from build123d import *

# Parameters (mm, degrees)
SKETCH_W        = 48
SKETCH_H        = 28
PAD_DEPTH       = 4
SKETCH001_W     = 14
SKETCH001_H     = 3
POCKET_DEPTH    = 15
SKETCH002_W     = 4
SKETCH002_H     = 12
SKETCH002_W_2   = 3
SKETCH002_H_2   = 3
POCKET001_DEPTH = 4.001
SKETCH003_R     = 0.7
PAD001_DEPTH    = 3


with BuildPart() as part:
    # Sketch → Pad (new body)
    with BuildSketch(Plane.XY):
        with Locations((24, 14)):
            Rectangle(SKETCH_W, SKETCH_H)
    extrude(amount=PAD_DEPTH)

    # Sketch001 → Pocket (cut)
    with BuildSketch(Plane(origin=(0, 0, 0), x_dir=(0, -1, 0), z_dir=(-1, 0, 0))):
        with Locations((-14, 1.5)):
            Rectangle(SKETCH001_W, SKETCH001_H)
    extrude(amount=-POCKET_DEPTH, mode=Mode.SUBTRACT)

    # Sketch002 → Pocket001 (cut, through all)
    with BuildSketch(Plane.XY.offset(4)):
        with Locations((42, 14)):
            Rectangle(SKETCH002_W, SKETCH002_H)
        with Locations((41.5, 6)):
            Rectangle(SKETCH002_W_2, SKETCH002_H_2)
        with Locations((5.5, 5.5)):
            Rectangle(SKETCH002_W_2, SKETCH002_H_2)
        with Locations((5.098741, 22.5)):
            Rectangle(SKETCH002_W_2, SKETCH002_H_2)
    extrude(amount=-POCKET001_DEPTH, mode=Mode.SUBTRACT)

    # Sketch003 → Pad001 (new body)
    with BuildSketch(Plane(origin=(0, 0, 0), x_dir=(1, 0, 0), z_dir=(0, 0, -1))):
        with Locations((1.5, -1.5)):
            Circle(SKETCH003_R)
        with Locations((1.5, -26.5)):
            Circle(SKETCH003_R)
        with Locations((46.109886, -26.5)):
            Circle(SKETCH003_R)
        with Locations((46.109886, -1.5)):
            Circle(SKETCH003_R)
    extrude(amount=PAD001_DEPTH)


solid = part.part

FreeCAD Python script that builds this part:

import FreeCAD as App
import Part
import Sketcher


def add_polygon(sketch, points):
    """Adds a closed chain of lines whose ends are joined by coincident constraints."""
    first, n = sketch.GeometryCount, len(points)
    for a, b in zip(points, points[1:] + points[:1]):
        sketch.addGeometry(Part.LineSegment(App.Vector(*a, 0), App.Vector(*b, 0)), False)
    for i in range(n):
        sketch.addConstraint(Sketcher.Constraint("Coincident", first + i, 2, first + (i + 1) % n, 1))

doc = App.newDocument("Part")
params = doc.addObject("Spreadsheet::Sheet", "Params")
for row, (alias, value) in enumerate([
    ("sketch1_width", "48 mm"),
    ("sketch1_height", "28 mm"),
    ("pad1_length", "4 mm"),
    ("sketch2_width", "14 mm"),
    ("sketch2_height", "3 mm"),
    ("pocket1_length", "15 mm"),
    ("sketch3_width", "4 mm"),
    ("sketch3_width2", "3 mm"),
    ("sketch3_height", "12 mm"),
    ("sketch4_diameter", "1.4 mm"),
    ("pad2_length", "3 mm"),
], start=1):
    params.set(f"A{row}", alias)
    params.set(f"B{row}", "=" + value)
    params.setAlias(f"B{row}", alias)

body = doc.addObject("PartDesign::Body", "Body")

sketch1 = body.newObject("Sketcher::SketchObject", "Sketch")
sketch1.AttachmentSupport = (doc.getObject("XY_Plane"), [""])
sketch1.MapMode = "FlatFace"
add_polygon(sketch1, [(0, 28), (0, 0), (48, 0), (48, 28)])
sketch1.addConstraint([
    Sketcher.Constraint("Vertical", 0),
    Sketcher.Constraint("Horizontal", 1),
    Sketcher.Constraint("Vertical", 2),
    Sketcher.Constraint("Horizontal", 3),
    Sketcher.Constraint("Coincident", 0, 2, -1, 1),
    Sketcher.Constraint("DistanceX", 1, 1, 1, 2, 48.0),
    Sketcher.Constraint("DistanceY", 0, 2, 0, 1, 28.0),
])
sketch1.setExpression("Constraints[9]", "Params.sketch1_width")
sketch1.setExpression("Constraints[10]", "Params.sketch1_height")
pad1 = body.newObject("PartDesign::Pad", "Pad")
pad1.Profile = sketch1
pad1.setExpression("Length", "Params.pad1_length")

sketch2 = body.newObject("Sketcher::SketchObject", "Sketch001")
sketch2.AttachmentSupport = (doc.getObject("YZ_Plane"), [""])
sketch2.MapMode = "FlatFace"
add_polygon(sketch2, [(21, 3), (21, 0), (7, 0), (7, 3)])
sketch2.addConstraint([
    Sketcher.Constraint("Vertical", 0),
    Sketcher.Constraint("Horizontal", 1),
    Sketcher.Constraint("Vertical", 2),
    Sketcher.Constraint("Horizontal", 3),
    Sketcher.Constraint("PointOnObject", 0, 2, -1),
    Sketcher.Constraint("DistanceX", 1, 2, 1, 1, 14.0),
    Sketcher.Constraint("DistanceY", 0, 2, 0, 1, 3.0),
    Sketcher.Constraint("DistanceX", -1, 1, 0, 2, 21.0),
])
sketch2.setExpression("Constraints[9]", "Params.sketch2_width")
sketch2.setExpression("Constraints[10]", "Params.sketch2_height")
pocket1 = body.newObject("PartDesign::Pocket", "Pocket")
pocket1.Profile = sketch2
pocket1.setExpression("Length", "Params.pocket1_length")
pocket1.Reversed = True

sketch3 = body.newObject("Sketcher::SketchObject", "Sketch002")
sketch3.AttachmentSupport = (doc.getObject("XY_Plane"), [""])
sketch3.MapMode = "FlatFace"
sketch3.AttachmentOffset = App.Placement(App.Vector(0, 0, 4), App.Rotation())
add_polygon(sketch3, [(40, 20), (40, 8), (44, 8), (44, 20)])
add_polygon(sketch3, [(40, 7.5), (40, 4.5), (43, 4.5), (43, 7.5)])
add_polygon(sketch3, [(4, 7), (4, 4), (7, 4), (7, 7)])
add_polygon(sketch3, [(3.6, 24), (3.6, 21), (6.6, 21), (6.6, 24)])
sketch3.addConstraint([
    Sketcher.Constraint("Vertical", 0),
    Sketcher.Constraint("Horizontal", 1),
    Sketcher.Constraint("Vertical", 2),
    Sketcher.Constraint("Horizontal", 3),
    Sketcher.Constraint("Vertical", 4),
    Sketcher.Constraint("Horizontal", 5),
    Sketcher.Constraint("Vertical", 6),
    Sketcher.Constraint("Horizontal", 7),
    Sketcher.Constraint("Vertical", 8),
    Sketcher.Constraint("Horizontal", 9),
    Sketcher.Constraint("Vertical", 10),
    Sketcher.Constraint("Horizontal", 11),
    Sketcher.Constraint("Vertical", 12),
    Sketcher.Constraint("Horizontal", 13),
    Sketcher.Constraint("Vertical", 14),
    Sketcher.Constraint("Horizontal", 15),
    Sketcher.Constraint("Vertical", 3, 2, 4, 2),
    Sketcher.Constraint("Equal", 7, 9),
    Sketcher.Constraint("Equal", 11, 13),
    Sketcher.Constraint("Equal", 15, 4),
    Sketcher.Constraint("Equal", 6, 8),
    Sketcher.Constraint("Equal", 10, 12),
    Sketcher.Constraint("DistanceX", 1, 1, 1, 2, 4.0),
    Sketcher.Constraint("DistanceX", 5, 1, 5, 2, 3.0),
    Sketcher.Constraint("DistanceY", 0, 2, 0, 1, 12.0),
    Sketcher.Constraint("DistanceX", -1, 1, 0, 2, 40.0),
    Sketcher.Constraint("DistanceY", -1, 1, 0, 2, 8.0),
    Sketcher.Constraint("DistanceX", -1, 1, 8, 2, 4.0),
    Sketcher.Constraint("DistanceY", -1, 1, 8, 2, 4.0),
    Sketcher.Constraint("DistanceY", -1, 1, 12, 2, 21.0),
    Sketcher.Constraint("DistanceY", -1, 1, 4, 2, 4.5),
    Sketcher.Constraint("DistanceX", -1, 1, 12, 2, 3.598741),
])
sketch3.setExpression("Constraints[38]", "Params.sketch3_width")
sketch3.setExpression("Constraints[39]", "Params.sketch3_width2")
sketch3.setExpression("Constraints[40]", "Params.sketch3_height")
pocket2 = body.newObject("PartDesign::Pocket", "Pocket001")
pocket2.Profile = sketch3
pocket2.Type = "ThroughAll"

sketch4 = body.newObject("Sketcher::SketchObject", "Sketch003")
sketch4.AttachmentSupport = (doc.getObject("XY_Plane"), [""])
sketch4.MapMode = "FlatFace"
sketch4.addGeometry([
    Part.Circle(App.Vector(1.5, 1.5, 0), App.Vector(0, 0, 1), 0.7),
    Part.Circle(App.Vector(1.5, 26.5, 0), App.Vector(0, 0, 1), 0.7),
    Part.Circle(App.Vector(46.1, 26.5, 0), App.Vector(0, 0, 1), 0.7),
    Part.Circle(App.Vector(46.1, 1.5, 0), App.Vector(0, 0, 1), 0.7),
], False)
sketch4.addConstraint([
    Sketcher.Constraint("Equal", 0, 1),
    Sketcher.Constraint("Equal", 1, 2),
    Sketcher.Constraint("Equal", 2, 3),
    Sketcher.Constraint("Horizontal", 1, 3, 2, 3),
    Sketcher.Constraint("Horizontal", 0, 3, 3, 3),
    Sketcher.Constraint("Vertical", 0, 3, 1, 3),
    Sketcher.Constraint("Vertical", 2, 3, 3, 3),
    Sketcher.Constraint("Diameter", 0, 1.4),
    Sketcher.Constraint("DistanceY", 0, 3, 1, 3, 25.0),
    Sketcher.Constraint("DistanceX", -1, 1, 0, 3, 1.5),
    Sketcher.Constraint("DistanceY", -1, 1, 0, 3, 1.5),
    Sketcher.Constraint("DistanceX", -1, 1, 2, 3, 46.109886),
])
sketch4.setExpression("Constraints[7]", "Params.sketch4_diameter")
pad2 = body.newObject("PartDesign::Pad", "Pad001")
pad2.Profile = sketch4
pad2.setExpression("Length", "Params.pad2_length")
pad2.Reversed = True

doc.recompute()
